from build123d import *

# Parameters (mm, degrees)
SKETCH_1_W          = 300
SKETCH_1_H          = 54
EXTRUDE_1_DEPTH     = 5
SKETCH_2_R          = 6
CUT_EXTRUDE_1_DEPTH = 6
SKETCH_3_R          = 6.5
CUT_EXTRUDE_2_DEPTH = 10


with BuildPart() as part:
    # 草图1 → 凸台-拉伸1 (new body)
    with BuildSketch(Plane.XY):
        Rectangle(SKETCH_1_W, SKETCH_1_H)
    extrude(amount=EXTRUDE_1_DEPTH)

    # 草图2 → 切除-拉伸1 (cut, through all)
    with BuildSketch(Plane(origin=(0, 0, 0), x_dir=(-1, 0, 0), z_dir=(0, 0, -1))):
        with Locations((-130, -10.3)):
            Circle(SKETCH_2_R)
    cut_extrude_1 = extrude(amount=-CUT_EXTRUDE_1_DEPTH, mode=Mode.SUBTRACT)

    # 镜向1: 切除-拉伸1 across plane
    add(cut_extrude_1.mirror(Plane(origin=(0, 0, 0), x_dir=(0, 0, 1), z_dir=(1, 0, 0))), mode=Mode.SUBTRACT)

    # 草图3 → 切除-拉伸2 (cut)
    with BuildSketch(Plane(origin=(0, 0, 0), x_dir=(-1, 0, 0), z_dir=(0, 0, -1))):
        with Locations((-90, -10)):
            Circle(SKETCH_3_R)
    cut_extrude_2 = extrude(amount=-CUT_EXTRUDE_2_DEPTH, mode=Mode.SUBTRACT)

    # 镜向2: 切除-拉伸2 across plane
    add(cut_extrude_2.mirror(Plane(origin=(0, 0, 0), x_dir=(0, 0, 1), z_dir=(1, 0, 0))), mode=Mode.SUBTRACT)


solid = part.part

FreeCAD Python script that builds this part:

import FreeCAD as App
import Part
import Sketcher
from FreeCAD import Vector
Q = App.Units.Quantity

doc = App.newDocument("Part")
params = doc.addObject("Spreadsheet::Sheet", "Params")
for row, (alias, value) in enumerate([
    ("sketch1_width", "300 mm"),
    ("sketch1_height", "54 mm"),
    ("pad1_length", "5 mm"),
    ("sketch2_diameter", "12 mm"),
    ("sketch3_diameter", "13 mm"),
    ("pocket2_length", "10 mm"),
], start=1):
    params.set(f"A{row}", alias)
    params.set(f"B{row}", "=" + value)
    params.setAlias(f"B{row}", alias)

body = doc.addObject("PartDesign::Body", "Body")

# Sketch on XY plane
sketch1 = doc.addObject("Sketcher::SketchObject", "Sketch")
body.addObject(sketch1)
sketch1.AttachmentSupport = (doc.XY_Plane, [""])
sketch1.MapMode = "FlatFace"
sketch1.addGeometry(Part.LineSegment(Vector(-150, 27, 0), Vector(-150, -27, 0)), False)
sketch1.addGeometry(Part.LineSegment(Vector(-150, -27, 0), Vector(150, -27, 0)), False)
sketch1.addGeometry(Part.LineSegment(Vector(150, -27, 0), Vector(150, 27, 0)), False)
sketch1.addGeometry(Part.LineSegment(Vector(150, 27, 0), Vector(-150, 27, 0)), False)
sketch1.addConstraint(Sketcher.Constraint("Coincident", 0, 2, 1, 1))
sketch1.addConstraint(Sketcher.Constraint("Coincident", 1, 2, 2, 1))
sketch1.addConstraint(Sketcher.Constraint("Coincident", 2, 2, 3, 1))
sketch1.addConstraint(Sketcher.Constraint("Coincident", 3, 2, 0, 1))
sketch1.addConstraint(Sketcher.Constraint("Vertical", 0))
sketch1.addConstraint(Sketcher.Constraint("Horizontal", 1))
sketch1.addConstraint(Sketcher.Constraint("Vertical", 2))
sketch1.addConstraint(Sketcher.Constraint("Horizontal", 3))
sketch1.addConstraint(Sketcher.Constraint("Symmetric", 0, 2, 2, 2, -1, 1))
sketch1.addConstraint(Sketcher.Constraint("DistanceX", 1, 1, 1, 2, Q("300 mm")))
sketch1.addConstraint(Sketcher.Constraint("DistanceY", 0, 2, 0, 1, Q("54 mm")))
sketch1.setExpression("Constraints[9]", "Params.sketch1_width")
sketch1.setExpression("Constraints[10]", "Params.sketch1_height")
pad1 = doc.addObject("PartDesign::Pad", "Pad")
body.addObject(pad1)
pad1.Profile = sketch1
pad1.setExpression("Length", "Params.pad1_length")

# Sketch on XY plane
sketch2 = doc.addObject("Sketcher::SketchObject", "Sketch001")
body.addObject(sketch2)
sketch2.AttachmentSupport = (doc.XY_Plane, [""])
sketch2.MapMode = "FlatFace"
sketch2.addGeometry(Part.Circle(Vector(130, -10.3, 0), Vector(0, 0, 1), 6), False)
sketch2.addConstraint(Sketcher.Constraint("Diameter", 0, Q("12 mm")))
sketch2.addConstraint(Sketcher.Constraint("DistanceX", -1, 1, 0, 3, Q("130 mm")))
sketch2.addConstraint(Sketcher.Constraint("DistanceY", 0, 3, -1, 1, Q("10.3 mm")))
sketch2.setExpression("Constraints[0]", "Params.sketch2_diameter")
pocket1 = doc.addObject("PartDesign::Pocket", "Pocket")
body.addObject(pocket1)
pocket1.Profile = sketch2
pocket1.Type = "ThroughAll"
pocket1.Reversed = True
doc.recompute()

mirrored = doc.addObject("PartDesign::Mirrored", "Mirrored")
body.addObject(mirrored)
mirrored.Originals = [pocket1]
mirrored.MirrorPlane = (doc.YZ_Plane, [""])
body.Tip = mirrored

# Sketch on XY plane
sketch3 = doc.addObject("Sketcher::SketchObject", "Sketch002")
body.addObject(sketch3)
sketch3.AttachmentSupport = (doc.XY_Plane, [""])
sketch3.MapMode = "FlatFace"
sketch3.addGeometry(Part.Circle(Vector(90, -10, 0), Vector(0, 0, 1), 6.5), False)
sketch3.addConstraint(Sketcher.Constraint("Diameter", 0, Q("13 mm")))
sketch3.addConstraint(Sketcher.Constraint("DistanceX", -1, 1, 0, 3, Q("90 mm")))
sketch3.addConstraint(Sketcher.Constraint("DistanceY", 0, 3, -1, 1, Q("10 mm")))
sketch3.setExpression("Constraints[0]", "Params.sketch3_diameter")
pocket2 = doc.addObject("PartDesign::Pocket", "Pocket001")
body.addObject(pocket2)
pocket2.Profile = sketch3
pocket2.setExpression("Length", "Params.pocket2_length")
pocket2.Reversed = True
doc.recompute()

mirrored2 = doc.addObject("PartDesign::Mirrored", "Mirrored001")
body.addObject(mirrored2)
mirrored2.Originals = [pocket2]
mirrored2.MirrorPlane = (doc.YZ_Plane, [""])
body.Tip = mirrored2

doc.recompute()
